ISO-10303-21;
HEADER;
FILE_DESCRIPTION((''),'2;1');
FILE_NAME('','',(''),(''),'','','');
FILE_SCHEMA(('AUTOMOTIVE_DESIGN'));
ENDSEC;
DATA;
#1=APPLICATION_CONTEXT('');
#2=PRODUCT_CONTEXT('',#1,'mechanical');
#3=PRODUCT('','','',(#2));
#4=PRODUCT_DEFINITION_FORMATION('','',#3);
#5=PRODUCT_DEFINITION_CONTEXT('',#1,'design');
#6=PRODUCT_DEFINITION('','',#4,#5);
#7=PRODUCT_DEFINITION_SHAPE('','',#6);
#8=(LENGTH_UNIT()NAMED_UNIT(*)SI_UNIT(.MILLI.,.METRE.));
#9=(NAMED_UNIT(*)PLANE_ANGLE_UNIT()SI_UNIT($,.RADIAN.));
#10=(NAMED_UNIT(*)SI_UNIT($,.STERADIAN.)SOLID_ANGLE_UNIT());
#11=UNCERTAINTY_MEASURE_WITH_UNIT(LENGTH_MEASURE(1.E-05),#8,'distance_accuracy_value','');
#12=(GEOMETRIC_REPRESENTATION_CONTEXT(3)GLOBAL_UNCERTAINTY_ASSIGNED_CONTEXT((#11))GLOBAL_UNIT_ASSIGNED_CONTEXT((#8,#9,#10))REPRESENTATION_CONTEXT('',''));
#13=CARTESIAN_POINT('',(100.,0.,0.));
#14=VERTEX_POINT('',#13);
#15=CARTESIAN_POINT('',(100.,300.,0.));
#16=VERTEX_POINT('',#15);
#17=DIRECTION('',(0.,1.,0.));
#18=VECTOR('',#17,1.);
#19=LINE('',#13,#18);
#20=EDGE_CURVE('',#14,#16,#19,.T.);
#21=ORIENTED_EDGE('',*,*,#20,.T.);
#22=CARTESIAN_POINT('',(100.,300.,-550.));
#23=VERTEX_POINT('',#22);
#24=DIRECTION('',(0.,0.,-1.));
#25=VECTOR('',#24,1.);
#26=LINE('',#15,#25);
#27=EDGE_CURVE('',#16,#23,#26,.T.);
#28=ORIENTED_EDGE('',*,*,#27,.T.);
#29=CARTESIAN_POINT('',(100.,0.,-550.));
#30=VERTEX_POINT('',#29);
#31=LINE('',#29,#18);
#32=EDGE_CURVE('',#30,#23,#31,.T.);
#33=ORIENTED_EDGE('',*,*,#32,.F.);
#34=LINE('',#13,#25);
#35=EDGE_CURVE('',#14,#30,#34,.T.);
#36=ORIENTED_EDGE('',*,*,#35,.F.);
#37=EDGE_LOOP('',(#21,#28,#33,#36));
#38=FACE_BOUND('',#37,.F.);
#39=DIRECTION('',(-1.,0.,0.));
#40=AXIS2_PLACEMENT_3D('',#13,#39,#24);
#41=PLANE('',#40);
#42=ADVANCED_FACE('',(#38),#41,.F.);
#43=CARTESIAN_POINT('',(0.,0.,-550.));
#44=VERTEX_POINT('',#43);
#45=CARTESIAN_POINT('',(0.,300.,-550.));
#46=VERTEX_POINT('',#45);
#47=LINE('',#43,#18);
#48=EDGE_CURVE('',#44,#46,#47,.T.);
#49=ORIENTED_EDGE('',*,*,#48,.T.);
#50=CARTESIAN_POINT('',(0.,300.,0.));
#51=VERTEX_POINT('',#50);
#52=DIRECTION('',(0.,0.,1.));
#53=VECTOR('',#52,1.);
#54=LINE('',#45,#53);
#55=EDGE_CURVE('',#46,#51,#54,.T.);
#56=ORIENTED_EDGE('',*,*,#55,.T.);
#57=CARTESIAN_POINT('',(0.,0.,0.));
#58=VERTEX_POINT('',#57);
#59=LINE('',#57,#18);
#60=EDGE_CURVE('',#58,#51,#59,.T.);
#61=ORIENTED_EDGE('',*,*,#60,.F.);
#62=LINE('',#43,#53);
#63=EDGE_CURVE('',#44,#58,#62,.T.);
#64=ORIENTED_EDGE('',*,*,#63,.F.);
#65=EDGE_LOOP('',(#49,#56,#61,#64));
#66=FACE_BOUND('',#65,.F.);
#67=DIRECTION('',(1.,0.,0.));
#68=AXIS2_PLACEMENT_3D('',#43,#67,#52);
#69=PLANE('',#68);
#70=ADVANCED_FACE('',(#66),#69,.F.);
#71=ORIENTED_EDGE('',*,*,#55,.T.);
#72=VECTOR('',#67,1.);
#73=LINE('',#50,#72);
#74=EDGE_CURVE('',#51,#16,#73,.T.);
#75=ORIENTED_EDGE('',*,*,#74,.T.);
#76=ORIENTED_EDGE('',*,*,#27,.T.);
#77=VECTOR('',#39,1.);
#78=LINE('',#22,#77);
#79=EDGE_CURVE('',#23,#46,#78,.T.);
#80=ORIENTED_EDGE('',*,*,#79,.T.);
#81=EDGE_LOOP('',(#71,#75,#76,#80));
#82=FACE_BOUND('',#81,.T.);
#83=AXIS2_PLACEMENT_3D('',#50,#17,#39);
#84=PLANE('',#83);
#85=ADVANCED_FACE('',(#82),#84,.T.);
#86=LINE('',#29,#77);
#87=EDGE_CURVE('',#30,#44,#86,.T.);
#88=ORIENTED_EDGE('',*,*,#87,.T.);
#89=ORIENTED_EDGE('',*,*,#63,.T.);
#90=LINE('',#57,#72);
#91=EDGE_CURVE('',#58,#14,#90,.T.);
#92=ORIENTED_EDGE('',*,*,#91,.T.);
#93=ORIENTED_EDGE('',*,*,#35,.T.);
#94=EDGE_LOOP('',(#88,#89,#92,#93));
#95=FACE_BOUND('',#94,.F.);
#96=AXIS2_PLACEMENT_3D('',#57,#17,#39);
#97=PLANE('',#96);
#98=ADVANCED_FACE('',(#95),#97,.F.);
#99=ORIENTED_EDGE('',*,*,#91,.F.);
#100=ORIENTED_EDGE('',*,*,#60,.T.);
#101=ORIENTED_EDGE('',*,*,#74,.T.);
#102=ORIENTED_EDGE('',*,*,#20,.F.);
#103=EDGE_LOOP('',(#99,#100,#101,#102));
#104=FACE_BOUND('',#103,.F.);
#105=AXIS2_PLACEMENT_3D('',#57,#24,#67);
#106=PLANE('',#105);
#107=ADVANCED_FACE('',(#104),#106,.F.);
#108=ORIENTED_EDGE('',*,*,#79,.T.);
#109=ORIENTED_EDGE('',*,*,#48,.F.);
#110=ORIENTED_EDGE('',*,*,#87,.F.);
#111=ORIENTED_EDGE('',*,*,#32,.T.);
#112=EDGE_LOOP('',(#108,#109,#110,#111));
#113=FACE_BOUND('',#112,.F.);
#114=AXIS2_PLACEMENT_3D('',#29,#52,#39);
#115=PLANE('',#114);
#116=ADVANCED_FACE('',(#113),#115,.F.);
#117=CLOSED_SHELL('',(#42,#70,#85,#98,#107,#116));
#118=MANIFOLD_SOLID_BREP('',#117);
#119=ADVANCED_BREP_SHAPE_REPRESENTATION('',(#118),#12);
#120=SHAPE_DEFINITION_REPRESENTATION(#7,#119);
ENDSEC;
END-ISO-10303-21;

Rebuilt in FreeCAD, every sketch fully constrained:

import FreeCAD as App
import Part
import Sketcher
Q = App.Units.Quantity


def add_polygon(sketch, points):
    """Adds a closed chain of lines whose ends are joined by coincident constraints."""
    first, n = sketch.GeometryCount, len(points)
    for a, b in zip(points, points[1:] + points[:1]):
        sketch.addGeometry(Part.LineSegment(App.Vector(*a, 0), App.Vector(*b, 0)), False)
    for i in range(n):
        sketch.addConstraint(Sketcher.Constraint("Coincident", first + i, 2, first + (i + 1) % n, 1))

doc = App.newDocument("Part")
params = doc.addObject("Spreadsheet::Sheet", "Params")
for row, (alias, value) in enumerate([
    ("sketch1_width", "100 mm"),
    ("sketch1_height", "550 mm"),
    ("pad1_length", "300 mm"),
], start=1):
    params.set(f"A{row}", alias)
    params.set(f"B{row}", "=" + value)
    params.setAlias(f"B{row}", alias)

body = doc.addObject("PartDesign::Body", "Body")

# Sketch on XZ plane
sketch1 = body.newObject("Sketcher::SketchObject", "Sketch")
sketch1.AttachmentSupport = (doc.getObject("XZ_Plane"), [""])
sketch1.MapMode = "FlatFace"
add_polygon(sketch1, [(0, -550), (0, 0), (100, 0), (100, -550)])  # lines 0-3
sketch1.addConstraint([
    Sketcher.Constraint("Vertical", 0),
    Sketcher.Constraint("Horizontal", 1),
    Sketcher.Constraint("Vertical", 2),
    Sketcher.Constraint("Horizontal", 3),
    Sketcher.Constraint("Coincident", 0, 2, -1, 1),
    Sketcher.Constraint("DistanceX", 1, 1, 1, 2, Q("100 mm")),
    Sketcher.Constraint("DistanceY", 0, 1, 0, 2, Q("550 mm")),
])
sketch1.setExpression("Constraints[9]", "Params.sketch1_width")
sketch1.setExpression("Constraints[10]", "Params.sketch1_height")
pad1 = body.newObject("PartDesign::Pad", "Pad")
pad1.Profile = sketch1
pad1.setExpression("Length", "Params.pad1_length")
pad1.Reversed = True

doc.recompute()
